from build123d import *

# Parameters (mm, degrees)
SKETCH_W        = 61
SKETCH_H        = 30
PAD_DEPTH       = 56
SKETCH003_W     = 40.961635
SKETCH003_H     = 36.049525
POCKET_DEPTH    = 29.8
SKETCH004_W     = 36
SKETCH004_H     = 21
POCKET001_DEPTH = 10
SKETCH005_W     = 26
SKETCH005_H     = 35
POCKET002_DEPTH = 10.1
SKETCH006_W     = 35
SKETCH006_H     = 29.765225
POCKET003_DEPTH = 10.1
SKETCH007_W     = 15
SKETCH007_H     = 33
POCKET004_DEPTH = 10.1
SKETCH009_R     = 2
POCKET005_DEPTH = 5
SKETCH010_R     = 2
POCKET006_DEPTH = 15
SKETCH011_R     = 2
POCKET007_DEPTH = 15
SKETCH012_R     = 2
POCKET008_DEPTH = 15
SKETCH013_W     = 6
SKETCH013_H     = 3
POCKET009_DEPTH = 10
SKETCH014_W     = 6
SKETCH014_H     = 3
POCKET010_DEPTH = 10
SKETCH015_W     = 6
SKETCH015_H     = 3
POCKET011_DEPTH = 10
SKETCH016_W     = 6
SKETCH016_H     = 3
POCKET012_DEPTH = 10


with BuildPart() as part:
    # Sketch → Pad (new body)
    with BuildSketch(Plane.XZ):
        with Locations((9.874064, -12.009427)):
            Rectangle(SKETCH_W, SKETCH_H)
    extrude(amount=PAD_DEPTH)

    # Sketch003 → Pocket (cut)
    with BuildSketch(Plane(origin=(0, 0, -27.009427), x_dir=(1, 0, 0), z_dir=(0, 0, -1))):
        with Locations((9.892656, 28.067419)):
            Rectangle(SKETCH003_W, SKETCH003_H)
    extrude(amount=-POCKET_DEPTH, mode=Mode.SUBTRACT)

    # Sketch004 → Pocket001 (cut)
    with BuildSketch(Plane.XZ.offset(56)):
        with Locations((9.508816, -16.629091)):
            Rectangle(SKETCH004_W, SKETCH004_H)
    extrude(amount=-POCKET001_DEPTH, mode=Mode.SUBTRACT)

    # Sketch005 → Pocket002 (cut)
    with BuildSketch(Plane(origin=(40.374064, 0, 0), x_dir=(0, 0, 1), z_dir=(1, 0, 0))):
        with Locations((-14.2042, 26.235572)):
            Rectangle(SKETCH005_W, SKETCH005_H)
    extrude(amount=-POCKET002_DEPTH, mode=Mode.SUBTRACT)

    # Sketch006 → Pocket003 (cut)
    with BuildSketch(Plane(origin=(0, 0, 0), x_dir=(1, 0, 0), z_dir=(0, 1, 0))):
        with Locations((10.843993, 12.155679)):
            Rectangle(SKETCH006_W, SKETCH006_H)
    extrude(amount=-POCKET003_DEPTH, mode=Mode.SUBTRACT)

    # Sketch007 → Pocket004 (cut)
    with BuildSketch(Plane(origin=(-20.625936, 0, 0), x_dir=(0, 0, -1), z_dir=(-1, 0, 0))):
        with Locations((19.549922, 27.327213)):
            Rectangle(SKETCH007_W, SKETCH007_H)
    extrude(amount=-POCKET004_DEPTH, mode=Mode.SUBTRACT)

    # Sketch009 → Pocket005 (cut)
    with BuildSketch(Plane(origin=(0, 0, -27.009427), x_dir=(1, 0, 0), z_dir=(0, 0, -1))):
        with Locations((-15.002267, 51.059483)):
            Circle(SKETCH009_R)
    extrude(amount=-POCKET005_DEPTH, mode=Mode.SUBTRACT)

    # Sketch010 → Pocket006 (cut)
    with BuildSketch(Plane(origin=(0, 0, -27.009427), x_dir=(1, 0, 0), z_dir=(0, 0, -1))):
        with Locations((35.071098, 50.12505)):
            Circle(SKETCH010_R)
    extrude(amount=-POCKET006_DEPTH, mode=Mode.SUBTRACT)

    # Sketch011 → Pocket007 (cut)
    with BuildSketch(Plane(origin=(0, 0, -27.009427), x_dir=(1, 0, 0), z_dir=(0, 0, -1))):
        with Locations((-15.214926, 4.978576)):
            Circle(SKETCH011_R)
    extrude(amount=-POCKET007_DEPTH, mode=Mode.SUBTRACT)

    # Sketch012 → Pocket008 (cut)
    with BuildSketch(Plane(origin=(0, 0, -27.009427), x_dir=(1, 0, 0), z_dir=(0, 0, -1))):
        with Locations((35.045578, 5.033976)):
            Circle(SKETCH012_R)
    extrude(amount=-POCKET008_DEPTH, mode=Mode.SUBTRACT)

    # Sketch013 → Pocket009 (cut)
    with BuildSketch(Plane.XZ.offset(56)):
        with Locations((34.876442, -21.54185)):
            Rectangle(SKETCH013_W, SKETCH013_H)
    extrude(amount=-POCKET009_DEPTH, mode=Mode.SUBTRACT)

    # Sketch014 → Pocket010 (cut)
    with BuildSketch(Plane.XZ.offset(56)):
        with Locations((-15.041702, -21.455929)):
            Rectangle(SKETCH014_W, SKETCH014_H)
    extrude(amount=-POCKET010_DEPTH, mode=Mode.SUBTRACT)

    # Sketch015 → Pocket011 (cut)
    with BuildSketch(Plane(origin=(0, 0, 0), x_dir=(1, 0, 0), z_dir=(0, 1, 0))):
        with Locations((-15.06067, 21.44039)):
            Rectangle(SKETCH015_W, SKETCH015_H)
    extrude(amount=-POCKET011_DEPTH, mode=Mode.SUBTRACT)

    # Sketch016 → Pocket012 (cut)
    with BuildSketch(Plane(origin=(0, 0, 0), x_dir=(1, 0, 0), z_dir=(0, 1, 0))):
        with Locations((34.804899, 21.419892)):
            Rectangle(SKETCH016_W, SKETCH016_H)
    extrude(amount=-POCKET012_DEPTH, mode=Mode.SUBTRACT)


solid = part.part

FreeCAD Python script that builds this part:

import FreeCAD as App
import Part
import Sketcher
Q = App.Units.Quantity


def add_polygon(sketch, points):
    """Adds a closed chain of lines whose ends are joined by coincident constraints."""
    first, n = sketch.GeometryCount, len(points)
    for a, b in zip(points, points[1:] + points[:1]):
        sketch.addGeometry(Part.LineSegment(App.Vector(*a, 0), App.Vector(*b, 0)), False)
    for i in range(n):
        sketch.addConstraint(Sketcher.Constraint("Coincident", first + i, 2, first + (i + 1) % n, 1))

doc = App.newDocument("Part")
body = doc.addObject("PartDesign::Body", "Body")

sketch1 = doc.addObject("Sketcher::SketchObject", "Sketch")
body.addObject(sketch1)
sketch1.AttachmentSupport = (doc.XZ_Plane, [""])
sketch1.MapMode = "FlatFace"
add_polygon(sketch1, [(-21, 3), (-21, -27), (40, -27), (40, 3)])
sketch1.addConstraint([
    Sketcher.Constraint("Vertical", 0),
    Sketcher.Constraint("Horizontal", 1),
    Sketcher.Constraint("Vertical", 2),
    Sketcher.Constraint("Horizontal", 3),
    Sketcher.Constraint("DistanceX", 1, 1, 1, 2, Q("61 mm")),
    Sketcher.Constraint("DistanceY", 0, 2, 0, 1, Q("30 mm")),
    Sketcher.Constraint("DistanceX", 0, 2, -1, 1, Q("20.625936 mm")),
    Sketcher.Constraint("DistanceY", 0, 2, -1, 1, Q("27.009427 mm")),
])
pad1 = doc.addObject("PartDesign::Pad", "Pad")
body.addObject(pad1)
pad1.Profile = sketch1
pad1.Length = 56

sketch2 = doc.addObject("Sketcher::SketchObject", "Sketch001")
body.addObject(sketch2)
sketch2.AttachmentSupport = (doc.XY_Plane, [""])
sketch2.MapMode = "FlatFace"
sketch2.AttachmentOffset = App.Placement(App.Vector(0, 0, -27.009427), App.Rotation())
add_polygon(sketch2, [(-11, -46), (-11, -10), (30, -10), (30, -46)])
sketch2.addConstraint([
    Sketcher.Constraint("Vertical", 0),
    Sketcher.Constraint("Horizontal", 1),
    Sketcher.Constraint("Vertical", 2),
    Sketcher.Constraint("Horizontal", 3),
    Sketcher.Constraint("DistanceX", 1, 1, 1, 2, Q("40.961635 mm")),
    Sketcher.Constraint("DistanceY", 0, 1, 0, 2, Q("36.049525 mm")),
    Sketcher.Constraint("DistanceX", 0, 2, -1, 1, Q("10.588162 mm")),
    Sketcher.Constraint("DistanceY", 2, 2, -1, 1, Q("46.092182 mm")),
])
pocket1 = doc.addObject("PartDesign::Pocket", "Pocket")
body.addObject(pocket1)
pocket1.Profile = sketch2
pocket1.Length = 29.8
pocket1.Reversed = True

sketch3 = doc.addObject("Sketcher::SketchObject", "Sketch002")
body.addObject(sketch3)
sketch3.AttachmentSupport = (doc.XZ_Plane, [""])
sketch3.MapMode = "FlatFace"
sketch3.AttachmentOffset = App.Placement(App.Vector(0, 0, 56), App.Rotation())
add_polygon(sketch3, [(-8, -6), (-8, -27), (28, -27), (28, -6)])
sketch3.addConstraint([
    Sketcher.Constraint("Vertical", 0),
    Sketcher.Constraint("Horizontal", 1),
    Sketcher.Constraint("Vertical", 2),
    Sketcher.Constraint("Horizontal", 3),
    Sketcher.Constraint("DistanceX", 1, 1, 1, 2, Q("36 mm")),
    Sketcher.Constraint("DistanceY", 0, 2, 0, 1, Q("21 mm")),
    Sketcher.Constraint("DistanceY", 0, 2, -1, 1, Q("27.129091 mm")),
    Sketcher.Constraint("DistanceX", 0, 2, -1, 1, Q("8.491184 mm")),
])
pocket2 = doc.addObject("PartDesign::Pocket", "Pocket001")
body.addObject(pocket2)
pocket2.Profile = sketch3
pocket2.Length = 10

sketch4 = doc.addObject("Sketcher::SketchObject", "Sketch003")
body.addObject(sketch4)
sketch4.AttachmentSupport = (doc.YZ_Plane, [""])
sketch4.MapMode = "FlatFace"
sketch4.AttachmentOffset = App.Placement(App.Vector(0, 0, 40.374064), App.Rotation())
add_polygon(sketch4, [(-44, -27), (-9, -27), (-9, -1), (-44, -1)])
sketch4.addConstraint([
    Sketcher.Constraint("Horizontal", 0),
    Sketcher.Constraint("Vertical", 1),
    Sketcher.Constraint("Horizontal", 2),
    Sketcher.Constraint("Vertical", 3),
    Sketcher.Constraint("DistanceX", 0, 1, 0, 2, Q("35 mm")),
    Sketcher.Constraint("DistanceY", 1, 1, 1, 2, Q("26 mm")),
    Sketcher.Constraint("DistanceY", 0, 2, -1, 1, Q("27.2042 mm")),
    Sketcher.Constraint("DistanceX", 2, 2, -1, 1, Q("43.735572 mm")),
])
pocket3 = doc.addObject("PartDesign::Pocket", "Pocket002")
body.addObject(pocket3)
pocket3.Profile = sketch4
pocket3.Length = 10.1

sketch5 = doc.addObject("Sketcher::SketchObject", "Sketch004")
body.addObject(sketch5)
sketch5.AttachmentSupport = (doc.XZ_Plane, [""])
sketch5.MapMode = "FlatFace"
add_polygon(sketch5, [(-7, -27), (-7, 3), (28, 3), (28, -27)])
sketch5.addConstraint([
    Sketcher.Constraint("Vertical", 0),
    Sketcher.Constraint("Horizontal", 1),
    Sketcher.Constraint("Vertical", 2),
    Sketcher.Constraint("Horizontal", 3),
    Sketcher.Constraint("DistanceX", 1, 1, 1, 2, Q("35 mm")),
    Sketcher.Constraint("DistanceY", 0, 1, 0, 2, Q("29.765225 mm")),
    Sketcher.Constraint("DistanceY", 2, 2, -1, 1, Q("27.038291 mm")),
    Sketcher.Constraint("DistanceX", 0, 2, -1, 1, Q("6.656007 mm")),
])
pocket4 = doc.addObject("PartDesign::Pocket", "Pocket003")
body.addObject(pocket4)
pocket4.Profile = sketch5
pocket4.Length = 10.1
pocket4.Reversed = True

sketch6 = doc.addObject("Sketcher::SketchObject", "Sketch005")
body.addObject(sketch6)
sketch6.AttachmentSupport = (doc.YZ_Plane, [""])
sketch6.MapMode = "FlatFace"
sketch6.AttachmentOffset = App.Placement(App.Vector(0, 0, -20.625936), App.Rotation())
add_polygon(sketch6, [(-44, -12), (-11, -12), (-11, -27), (-44, -27)])
sketch6.addConstraint([
    Sketcher.Constraint("Horizontal", 0),
    Sketcher.Constraint("Vertical", 1),
    Sketcher.Constraint("Horizontal", 2),
    Sketcher.Constraint("Vertical", 3),
    Sketcher.Constraint("DistanceX", 0, 1, 0, 2, Q("33 mm")),
    Sketcher.Constraint("DistanceY", 1, 2, 1, 1, Q("15 mm")),
    Sketcher.Constraint("DistanceY", 1, 2, -1, 1, Q("27.049922 mm")),
    Sketcher.Constraint("DistanceX", 0, 2, -1, 1, Q("10.827213 mm")),
])
pocket5 = doc.addObject("PartDesign::Pocket", "Pocket004")
body.addObject(pocket5)
pocket5.Profile = sketch6
pocket5.Length = 10.1
pocket5.Reversed = True

sketch7 = doc.addObject("Sketcher::SketchObject", "Sketch006")
body.addObject(sketch7)
sketch7.AttachmentSupport = (doc.XY_Plane, [""])
sketch7.MapMode = "FlatFace"
sketch7.AttachmentOffset = App.Placement(App.Vector(0, 0, -27.009427), App.Rotation())
sketch7.addGeometry(Part.Circle(App.Vector(-15, -51.1, 0), App.Vector(0, 0, 1), 2), False)
sketch7.addConstraint([
    Sketcher.Constraint("Diameter", 0, Q("4 mm")),
    Sketcher.Constraint("DistanceX", 0, 3, -1, 1, Q("15.002267 mm")),
    Sketcher.Constraint("DistanceY", 0, 3, -1, 1, Q("51.059483 mm")),
])
pocket6 = doc.addObject("PartDesign::Pocket", "Pocket005")
body.addObject(pocket6)
pocket6.Profile = sketch7
pocket6.Length = 5
pocket6.Reversed = True

sketch8 = doc.addObject("Sketcher::SketchObject", "Sketch007")
body.addObject(sketch8)
sketch8.AttachmentSupport = (doc.XY_Plane, [""])
sketch8.MapMode = "FlatFace"
sketch8.AttachmentOffset = App.Placement(App.Vector(0, 0, -27.009427), App.Rotation())
sketch8.addGeometry(Part.Circle(App.Vector(35.1, -50.1, 0), App.Vector(0, 0, 1), 2), False)
sketch8.addConstraint([
    Sketcher.Constraint("Diameter", 0, Q("4 mm")),
    Sketcher.Constraint("DistanceY", 0, 3, -1, 1, Q("50.12505 mm")),
    Sketcher.Constraint("DistanceX", -1, 1, 0, 3, Q("35.071098 mm")),
])
pocket7 = doc.addObject("PartDesign::Pocket", "Pocket006")
body.addObject(pocket7)
pocket7.Profile = sketch8
pocket7.Length = 15
pocket7.Reversed = True

sketch9 = doc.addObject("Sketcher::SketchObject", "Sketch008")
body.addObject(sketch9)
sketch9.AttachmentSupport = (doc.XY_Plane, [""])
sketch9.MapMode = "FlatFace"
sketch9.AttachmentOffset = App.Placement(App.Vector(0, 0, -27.009427), App.Rotation())
sketch9.addGeometry(Part.Circle(App.Vector(-15.2, -5, 0), App.Vector(0, 0, 1), 2), False)
sketch9.addConstraint([
    Sketcher.Constraint("Diameter", 0, Q("4 mm")),
    Sketcher.Constraint("DistanceX", 0, 3, -1, 1, Q("15.214926 mm")),
    Sketcher.Constraint("DistanceY", 0, 3, -1, 1, Q("4.978576 mm")),
])
pocket8 = doc.addObject("PartDesign::Pocket", "Pocket007")
body.addObject(pocket8)
pocket8.Profile = sketch9
pocket8.Length = 15
pocket8.Reversed = True

sketch10 = doc.addObject("Sketcher::SketchObject", "Sketch009")
body.addObject(sketch10)
sketch10.AttachmentSupport = (doc.XY_Plane, [""])
sketch10.MapMode = "FlatFace"
sketch10.AttachmentOffset = App.Placement(App.Vector(0, 0, -27.009427), App.Rotation())
sketch10.addGeometry(Part.Circle(App.Vector(35, -5, 0), App.Vector(0, 0, 1), 2), False)
sketch10.addConstraint([
    Sketcher.Constraint("Diameter", 0, Q("4 mm")),
    Sketcher.Constraint("DistanceX", -1, 1, 0, 3, Q("35.045578 mm")),
    Sketcher.Constraint("DistanceY", 0, 3, -1, 1, Q("5.033976 mm")),
])
pocket9 = doc.addObject("PartDesign::Pocket", "Pocket008")
body.addObject(pocket9)
pocket9.Profile = sketch10
pocket9.Length = 15
pocket9.Reversed = True

sketch11 = doc.addObject("Sketcher::SketchObject", "Sketch010")
body.addObject(sketch11)
sketch11.AttachmentSupport = (doc.XZ_Plane, [""])
sketch11.MapMode = "FlatFace"
sketch11.AttachmentOffset = App.Placement(App.Vector(0, 0, 56), App.Rotation())
add_polygon(sketch11, [(31.9, -20), (31.9, -23), (37.9, -23), (37.9, -20)])
sketch11.addConstraint([
    Sketcher.Constraint("Vertical", 0),
    Sketcher.Constraint("Horizontal", 1),
    Sketcher.Constraint("Vertical", 2),
    Sketcher.Constraint("Horizontal", 3),
    Sketcher.Constraint("DistanceX", 1, 1, 1, 2, Q("6 mm")),
    Sketcher.Constraint("DistanceY", 0, 2, 0, 1, Q("3 mm")),
    Sketcher.Constraint("DistanceY", 0, 2, -1, 1, Q("23.04185 mm")),
    Sketcher.Constraint("DistanceX", -1, 1, 1, 2, Q("37.876442 mm")),
])
pocket10 = doc.addObject("PartDesign::Pocket", "Pocket009")
body.addObject(pocket10)
pocket10.Profile = sketch11
pocket10.Length = 10

sketch12 = doc.addObject("Sketcher::SketchObject", "Sketch011")
body.addObject(sketch12)
sketch12.AttachmentSupport = (doc.XZ_Plane, [""])
sketch12.MapMode = "FlatFace"
sketch12.AttachmentOffset = App.Placement(App.Vector(0, 0, 56), App.Rotation())
add_polygon(sketch12, [(-18, -20), (-18, -23), (-12, -23), (-12, -20)])
sketch12.addConstraint([
    Sketcher.Constraint("Vertical", 0),
    Sketcher.Constraint("Horizontal", 1),
    Sketcher.Constraint("Vertical", 2),
    Sketcher.Constraint("Horizontal", 3),
    Sketcher.Constraint("DistanceX", 1, 1, 1, 2, Q("6 mm")),
    Sketcher.Constraint("DistanceY", 0, 2, 0, 1, Q("3 mm")),
    Sketcher.Constraint("DistanceY", 0, 2, -1, 1, Q("22.955929 mm")),
    Sketcher.Constraint("DistanceX", 0, 2, -1, 1, Q("18.041702 mm")),
])
pocket11 = doc.addObject("PartDesign::Pocket", "Pocket010")
body.addObject(pocket11)
pocket11.Profile = sketch12
pocket11.Length = 10

sketch13 = doc.addObject("Sketcher::SketchObject", "Sketch012")
body.addObject(sketch13)
sketch13.AttachmentSupport = (doc.XZ_Plane, [""])
sketch13.MapMode = "FlatFace"
add_polygon(sketch13, [(-18.1, -22.9), (-18.1, -19.9), (-12.1, -19.9), (-12.1, -22.9)])
sketch13.addConstraint([
    Sketcher.Constraint("Vertical", 0),
    Sketcher.Constraint("Horizontal", 1),
    Sketcher.Constraint("Vertical", 2),
    Sketcher.Constraint("Horizontal", 3),
    Sketcher.Constraint("DistanceX", 1, 1, 1, 2, Q("6 mm")),
    Sketcher.Constraint("DistanceY", 0, 1, 0, 2, Q("3 mm")),
    Sketcher.Constraint("DistanceX", 0, 2, -1, 1, Q("18.06067 mm")),
    Sketcher.Constraint("DistanceY", 0, 2, -1, 1, Q("19.94039 mm")),
])
pocket12 = doc.addObject("PartDesign::Pocket", "Pocket011")
body.addObject(pocket12)
pocket12.Profile = sketch13
pocket12.Length = 10
pocket12.Reversed = True

sketch14 = doc.addObject("Sketcher::SketchObject", "Sketch013")
body.addObject(sketch14)
sketch14.AttachmentSupport = (doc.XZ_Plane, [""])
sketch14.MapMode = "FlatFace"
add_polygon(sketch14, [(31.8, -22.9), (31.8, -19.9), (37.8, -19.9), (37.8, -22.9)])
sketch14.addConstraint([
    Sketcher.Constraint("Vertical", 0),
    Sketcher.Constraint("Horizontal", 1),
    Sketcher.Constraint("Vertical", 2),
    Sketcher.Constraint("Horizontal", 3),
    Sketcher.Constraint("DistanceX", 1, 1, 1, 2, Q("6 mm")),
    Sketcher.Constraint("DistanceY", 0, 1, 0, 2, Q("3 mm")),
    Sketcher.Constraint("DistanceX", -1, 1, 0, 2, Q("31.804899 mm")),
    Sketcher.Constraint("DistanceY", 0, 2, -1, 1, Q("19.919892 mm")),
])
pocket13 = doc.addObject("PartDesign::Pocket", "Pocket012")
body.addObject(pocket13)
pocket13.Profile = sketch14
pocket13.Length = 10
pocket13.Reversed = True

doc.recompute()
